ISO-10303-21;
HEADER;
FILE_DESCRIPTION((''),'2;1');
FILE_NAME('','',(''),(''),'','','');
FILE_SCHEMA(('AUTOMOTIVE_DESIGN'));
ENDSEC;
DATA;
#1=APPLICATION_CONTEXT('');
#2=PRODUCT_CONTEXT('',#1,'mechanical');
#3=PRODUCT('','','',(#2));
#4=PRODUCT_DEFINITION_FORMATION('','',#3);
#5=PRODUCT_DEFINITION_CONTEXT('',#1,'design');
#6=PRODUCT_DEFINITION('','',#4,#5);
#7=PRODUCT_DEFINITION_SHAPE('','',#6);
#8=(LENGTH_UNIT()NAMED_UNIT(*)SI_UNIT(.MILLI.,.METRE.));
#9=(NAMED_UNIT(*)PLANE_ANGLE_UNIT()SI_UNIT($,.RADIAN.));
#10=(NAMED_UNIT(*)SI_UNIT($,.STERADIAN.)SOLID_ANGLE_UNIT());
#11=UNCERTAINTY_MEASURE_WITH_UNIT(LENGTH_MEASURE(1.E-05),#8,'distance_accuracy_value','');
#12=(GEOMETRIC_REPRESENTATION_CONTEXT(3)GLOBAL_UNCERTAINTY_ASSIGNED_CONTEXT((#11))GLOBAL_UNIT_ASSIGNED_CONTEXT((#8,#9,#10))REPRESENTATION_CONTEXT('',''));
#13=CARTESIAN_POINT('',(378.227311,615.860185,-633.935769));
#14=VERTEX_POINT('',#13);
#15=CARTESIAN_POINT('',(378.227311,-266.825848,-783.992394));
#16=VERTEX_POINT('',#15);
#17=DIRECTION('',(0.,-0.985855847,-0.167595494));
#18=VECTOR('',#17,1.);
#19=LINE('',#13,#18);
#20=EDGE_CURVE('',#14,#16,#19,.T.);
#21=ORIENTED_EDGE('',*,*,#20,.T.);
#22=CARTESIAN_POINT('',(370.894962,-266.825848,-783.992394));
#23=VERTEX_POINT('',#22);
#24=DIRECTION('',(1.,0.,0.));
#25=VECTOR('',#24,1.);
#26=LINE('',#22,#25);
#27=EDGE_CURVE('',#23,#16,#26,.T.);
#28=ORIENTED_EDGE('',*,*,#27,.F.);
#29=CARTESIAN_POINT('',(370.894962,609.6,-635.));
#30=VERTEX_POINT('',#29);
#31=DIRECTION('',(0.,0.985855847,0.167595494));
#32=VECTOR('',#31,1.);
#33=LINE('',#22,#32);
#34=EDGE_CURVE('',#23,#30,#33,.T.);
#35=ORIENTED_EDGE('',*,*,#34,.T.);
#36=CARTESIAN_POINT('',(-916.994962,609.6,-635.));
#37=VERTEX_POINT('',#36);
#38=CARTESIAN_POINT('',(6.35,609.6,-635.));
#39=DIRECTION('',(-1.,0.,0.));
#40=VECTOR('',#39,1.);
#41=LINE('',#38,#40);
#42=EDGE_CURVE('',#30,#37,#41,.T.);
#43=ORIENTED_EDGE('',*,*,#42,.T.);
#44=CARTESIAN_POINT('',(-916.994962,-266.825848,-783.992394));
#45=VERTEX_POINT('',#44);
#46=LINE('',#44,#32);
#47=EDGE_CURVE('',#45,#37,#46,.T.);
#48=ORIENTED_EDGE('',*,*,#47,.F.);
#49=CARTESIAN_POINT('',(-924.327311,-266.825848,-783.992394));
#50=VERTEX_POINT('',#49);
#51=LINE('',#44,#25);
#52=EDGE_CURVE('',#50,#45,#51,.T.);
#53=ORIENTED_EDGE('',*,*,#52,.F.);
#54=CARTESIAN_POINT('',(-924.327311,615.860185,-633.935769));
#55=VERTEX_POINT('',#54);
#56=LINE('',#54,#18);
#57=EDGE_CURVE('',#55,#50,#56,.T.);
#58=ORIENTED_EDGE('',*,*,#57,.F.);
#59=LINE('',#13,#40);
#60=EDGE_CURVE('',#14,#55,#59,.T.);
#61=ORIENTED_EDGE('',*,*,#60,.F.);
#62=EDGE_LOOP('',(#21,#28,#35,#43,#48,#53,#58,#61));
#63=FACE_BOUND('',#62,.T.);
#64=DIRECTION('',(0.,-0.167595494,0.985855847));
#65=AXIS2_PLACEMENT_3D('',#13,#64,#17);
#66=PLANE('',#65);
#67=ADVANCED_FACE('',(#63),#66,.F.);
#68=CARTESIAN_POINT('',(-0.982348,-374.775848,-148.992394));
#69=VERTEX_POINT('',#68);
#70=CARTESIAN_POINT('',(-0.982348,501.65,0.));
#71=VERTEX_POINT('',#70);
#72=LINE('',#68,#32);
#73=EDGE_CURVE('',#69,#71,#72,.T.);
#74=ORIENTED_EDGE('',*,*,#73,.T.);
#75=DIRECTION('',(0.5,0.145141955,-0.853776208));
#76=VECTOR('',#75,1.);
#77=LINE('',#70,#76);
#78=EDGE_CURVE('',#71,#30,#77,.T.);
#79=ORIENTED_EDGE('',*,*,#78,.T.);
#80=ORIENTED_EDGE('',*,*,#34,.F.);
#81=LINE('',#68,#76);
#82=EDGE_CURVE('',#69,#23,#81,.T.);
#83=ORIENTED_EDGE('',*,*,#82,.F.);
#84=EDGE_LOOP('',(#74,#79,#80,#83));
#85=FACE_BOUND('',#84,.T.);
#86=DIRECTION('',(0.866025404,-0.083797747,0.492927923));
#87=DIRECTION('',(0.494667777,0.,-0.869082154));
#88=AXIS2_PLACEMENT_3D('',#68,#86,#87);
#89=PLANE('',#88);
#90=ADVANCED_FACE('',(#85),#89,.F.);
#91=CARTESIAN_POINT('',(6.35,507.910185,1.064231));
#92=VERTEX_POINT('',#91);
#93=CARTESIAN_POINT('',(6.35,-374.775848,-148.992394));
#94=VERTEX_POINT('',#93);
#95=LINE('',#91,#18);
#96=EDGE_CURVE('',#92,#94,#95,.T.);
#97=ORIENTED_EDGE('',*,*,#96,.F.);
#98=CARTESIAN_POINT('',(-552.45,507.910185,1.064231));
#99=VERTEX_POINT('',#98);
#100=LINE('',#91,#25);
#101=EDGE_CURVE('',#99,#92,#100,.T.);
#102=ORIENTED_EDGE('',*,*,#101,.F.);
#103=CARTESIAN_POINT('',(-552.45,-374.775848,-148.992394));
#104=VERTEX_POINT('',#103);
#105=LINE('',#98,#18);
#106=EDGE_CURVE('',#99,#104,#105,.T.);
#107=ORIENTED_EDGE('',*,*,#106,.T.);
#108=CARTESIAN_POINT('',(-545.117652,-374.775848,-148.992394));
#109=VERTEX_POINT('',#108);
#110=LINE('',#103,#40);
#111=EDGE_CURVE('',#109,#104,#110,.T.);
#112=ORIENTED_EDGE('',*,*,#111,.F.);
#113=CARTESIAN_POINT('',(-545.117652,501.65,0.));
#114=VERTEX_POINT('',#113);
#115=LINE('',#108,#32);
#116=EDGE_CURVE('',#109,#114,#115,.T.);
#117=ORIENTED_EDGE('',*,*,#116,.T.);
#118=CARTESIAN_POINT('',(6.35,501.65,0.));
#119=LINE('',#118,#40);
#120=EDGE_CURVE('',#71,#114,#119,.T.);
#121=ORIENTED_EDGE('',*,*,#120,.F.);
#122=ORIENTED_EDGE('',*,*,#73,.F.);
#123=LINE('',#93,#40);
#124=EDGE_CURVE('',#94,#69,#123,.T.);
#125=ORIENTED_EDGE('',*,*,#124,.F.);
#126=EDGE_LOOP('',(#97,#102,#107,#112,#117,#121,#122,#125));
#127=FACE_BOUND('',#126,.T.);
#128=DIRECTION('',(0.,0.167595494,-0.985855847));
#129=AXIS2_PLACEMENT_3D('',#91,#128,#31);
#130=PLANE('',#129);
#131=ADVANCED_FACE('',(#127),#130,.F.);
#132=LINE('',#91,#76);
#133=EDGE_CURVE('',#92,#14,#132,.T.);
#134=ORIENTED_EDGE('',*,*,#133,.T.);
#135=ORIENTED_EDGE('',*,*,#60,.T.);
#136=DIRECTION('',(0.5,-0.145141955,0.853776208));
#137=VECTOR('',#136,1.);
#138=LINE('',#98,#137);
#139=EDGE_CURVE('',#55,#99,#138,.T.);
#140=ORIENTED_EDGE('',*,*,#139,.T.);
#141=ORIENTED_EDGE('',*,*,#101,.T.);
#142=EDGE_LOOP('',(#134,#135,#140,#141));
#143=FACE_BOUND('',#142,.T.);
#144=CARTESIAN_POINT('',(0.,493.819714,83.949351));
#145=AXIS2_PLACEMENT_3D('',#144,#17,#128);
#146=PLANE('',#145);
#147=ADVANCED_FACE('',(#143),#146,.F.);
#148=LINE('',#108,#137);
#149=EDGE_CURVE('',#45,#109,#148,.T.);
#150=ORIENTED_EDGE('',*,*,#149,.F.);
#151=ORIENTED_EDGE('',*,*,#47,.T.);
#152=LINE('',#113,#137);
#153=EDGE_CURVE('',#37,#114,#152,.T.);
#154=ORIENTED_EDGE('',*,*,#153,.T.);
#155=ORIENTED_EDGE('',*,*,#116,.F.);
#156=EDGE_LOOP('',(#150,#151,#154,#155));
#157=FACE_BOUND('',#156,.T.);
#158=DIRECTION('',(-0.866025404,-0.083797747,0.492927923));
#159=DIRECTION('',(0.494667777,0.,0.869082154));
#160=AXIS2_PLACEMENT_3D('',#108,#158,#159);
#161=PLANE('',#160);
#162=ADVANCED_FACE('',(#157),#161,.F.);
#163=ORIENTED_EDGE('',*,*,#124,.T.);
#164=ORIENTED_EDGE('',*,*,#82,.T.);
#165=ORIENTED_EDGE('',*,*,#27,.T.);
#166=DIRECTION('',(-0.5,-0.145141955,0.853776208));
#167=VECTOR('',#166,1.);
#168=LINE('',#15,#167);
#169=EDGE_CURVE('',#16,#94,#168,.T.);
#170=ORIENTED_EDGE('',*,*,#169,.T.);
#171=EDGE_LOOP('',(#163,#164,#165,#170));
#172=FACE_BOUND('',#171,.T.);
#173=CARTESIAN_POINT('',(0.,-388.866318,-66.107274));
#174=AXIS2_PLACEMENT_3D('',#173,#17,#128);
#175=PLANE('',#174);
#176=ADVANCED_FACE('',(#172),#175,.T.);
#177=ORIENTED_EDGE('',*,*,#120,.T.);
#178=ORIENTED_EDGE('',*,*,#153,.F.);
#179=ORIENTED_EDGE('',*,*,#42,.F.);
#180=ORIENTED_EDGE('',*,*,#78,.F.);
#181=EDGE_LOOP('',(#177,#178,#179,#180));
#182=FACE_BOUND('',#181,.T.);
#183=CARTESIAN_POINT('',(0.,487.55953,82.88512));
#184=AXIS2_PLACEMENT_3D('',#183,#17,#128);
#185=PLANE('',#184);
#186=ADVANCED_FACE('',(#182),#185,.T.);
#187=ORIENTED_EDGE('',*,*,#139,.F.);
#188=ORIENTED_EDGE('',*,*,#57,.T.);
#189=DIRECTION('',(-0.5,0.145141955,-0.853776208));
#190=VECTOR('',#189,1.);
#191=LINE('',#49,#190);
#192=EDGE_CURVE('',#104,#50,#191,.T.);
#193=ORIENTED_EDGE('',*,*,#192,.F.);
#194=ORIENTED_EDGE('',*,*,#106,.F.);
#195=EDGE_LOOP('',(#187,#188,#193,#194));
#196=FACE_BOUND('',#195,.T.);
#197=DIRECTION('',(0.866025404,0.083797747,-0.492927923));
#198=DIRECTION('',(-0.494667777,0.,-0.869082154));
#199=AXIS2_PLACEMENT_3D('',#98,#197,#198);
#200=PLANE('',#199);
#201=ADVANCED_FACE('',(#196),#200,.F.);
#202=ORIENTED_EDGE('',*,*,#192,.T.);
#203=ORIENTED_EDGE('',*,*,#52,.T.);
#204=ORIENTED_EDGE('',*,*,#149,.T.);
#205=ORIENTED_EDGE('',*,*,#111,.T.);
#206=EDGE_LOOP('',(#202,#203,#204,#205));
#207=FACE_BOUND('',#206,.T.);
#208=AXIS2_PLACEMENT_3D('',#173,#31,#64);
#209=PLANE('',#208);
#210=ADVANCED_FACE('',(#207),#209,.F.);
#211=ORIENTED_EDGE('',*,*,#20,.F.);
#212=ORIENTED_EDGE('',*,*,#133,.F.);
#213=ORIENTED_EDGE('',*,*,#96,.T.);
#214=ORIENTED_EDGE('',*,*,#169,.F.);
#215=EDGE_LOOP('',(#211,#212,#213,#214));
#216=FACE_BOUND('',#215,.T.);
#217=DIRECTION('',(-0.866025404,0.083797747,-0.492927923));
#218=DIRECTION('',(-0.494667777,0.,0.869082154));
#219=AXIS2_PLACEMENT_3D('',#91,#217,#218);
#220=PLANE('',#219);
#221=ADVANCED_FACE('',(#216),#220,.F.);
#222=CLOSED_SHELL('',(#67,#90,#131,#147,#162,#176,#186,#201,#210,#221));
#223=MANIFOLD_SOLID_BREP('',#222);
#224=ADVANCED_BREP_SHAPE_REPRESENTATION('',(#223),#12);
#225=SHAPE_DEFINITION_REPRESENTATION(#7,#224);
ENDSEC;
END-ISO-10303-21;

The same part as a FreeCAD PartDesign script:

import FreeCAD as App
import Part
import Sketcher
Q = App.Units.Quantity


def add_polygon(sketch, points):
    """Adds a closed chain of lines whose ends are joined by coincident constraints."""
    first, n = sketch.GeometryCount, len(points)
    for a, b in zip(points, points[1:] + points[:1]):
        sketch.addGeometry(Part.LineSegment(App.Vector(*a, 0), App.Vector(*b, 0)), False)
    for i in range(n):
        sketch.addConstraint(Sketcher.Constraint("Coincident", first + i, 2, first + (i + 1) % n, 1))

doc = App.newDocument("Part")
body = doc.addObject("PartDesign::Body", "Body")

# Sketch on YZ plane
sketch1 = body.newObject("Sketcher::SketchObject", "Sketch")
sketch1.AttachmentSupport = (doc.getObject("YZ_Plane"), [""])
sketch1.MapMode = "FlatFace"
add_polygon(sketch1, [(0, 0), (0, -635), (610, -635), (502, 0)])  # lines 0-3
sketch1.addConstraint(Sketcher.Constraint("Vertical", 0))
sketch1.addConstraint(Sketcher.Constraint("Horizontal", 1))
sketch1.addConstraint(Sketcher.Constraint("Horizontal", 3))
sketch1.addConstraint(Sketcher.Constraint("Coincident", 3, 2, -1, 1))
sketch1.addConstraint(Sketcher.Constraint("DistanceX", 1, 1, 1, 2, Q("24 in")))
sketch1.addConstraint(Sketcher.Constraint("DistanceY", 0, 2, 0, 1, Q("25 in")))
sketch1.addConstraint(Sketcher.Constraint("DistanceX", 3, 2, 3, 1, Q("19.75 in")))
pad1 = body.newObject("PartDesign::Pad", "Pad")
pad1.Profile = sketch1
pad1.Length = Q("0.25 in")

# Sketch on an angled plane
sketch2 = body.newObject("Sketcher::SketchObject", "Sketch001")
sketch2.Placement = App.Placement(App.Vector(0, 487.55953, 82.88512), App.Rotation(App.Vector(1, 0, 0), App.Vector(0, 0.167595494, -0.985855847), App.Vector(0, 0.985855847, 0.167595494), "ZXY"))
add_polygon(sketch2, [(6, 84), (378, 728), (-924, 728), (-552, 84)])  # lines 0-3
sketch2.addConstraint(Sketcher.Constraint("Horizontal", 1))
sketch2.addConstraint(Sketcher.Constraint("Horizontal", 3))
sketch2.addConstraint(Sketcher.Constraint("Equal", 0, 2))
sketch2.addConstraint(Sketcher.Constraint("DistanceX", 3, 1, 3, 2, Q("22 in")))
sketch2.addConstraint(Sketcher.Constraint("Angle", 0, Q("60 deg")))
sketch2.addConstraint(Sketcher.Constraint("DistanceX", 2, 2, -1, 1, Q("21.75 in")))
sketch2.addConstraint(Sketcher.Constraint("DistanceX", 1, 2, 1, 1, 1302.554621))
sketch2.addConstraint(Sketcher.Constraint("DistanceY", -1, 1, 2, 2, 84.07428))
pad2 = body.newObject("PartDesign::Pad", "Pad001")
pad2.Profile = sketch2
pad2.Length = Q("0.25 in")

# Sketch on YZ plane
sketch3 = body.newObject("Sketcher::SketchObject", "Sketch002")
sketch3.AttachmentSupport = (doc.getObject("YZ_Plane"), [""])
sketch3.MapMode = "FlatFace"
sketch3.AttachmentOffset = App.Placement(App.Vector(0, 0, 0.25 * 25.4), App.Rotation())
add_polygon(sketch3, [(502, 0), (0, 0), (0, -635), (610, -635)])  # lines 0-3
sketch3.addConstraint(Sketcher.Constraint("Horizontal", 0))
sketch3.addConstraint(Sketcher.Constraint("Vertical", 1))
sketch3.addConstraint(Sketcher.Constraint("Horizontal", 2))
sketch3.addConstraint(Sketcher.Constraint("Coincident", 0, 2, -1, 1))
sketch3.addConstraint(Sketcher.Constraint("DistanceX", 2, 1, 2, 2, Q("24 in")))
sketch3.addConstraint(Sketcher.Constraint("DistanceY", 1, 2, 1, 1, Q("25 in")))
sketch3.addConstraint(Sketcher.Constraint("DistanceX", 0, 2, 0, 1, Q("19.75 in")))
pocket1 = body.newObject("PartDesign::Pocket", "Pocket")
pocket1.Profile = sketch3
pocket1.Type = "UpToFirst"

# Sketch on an angled plane
sketch4 = body.newObject("Sketcher::SketchObject", "Sketch003")
sketch4.Placement = App.Placement(App.Vector(0, 487.55953, 82.88512), App.Rotation(App.Vector(1, 0, 0), App.Vector(0, -0.167595494, 0.985855847), App.Vector(0, -0.985855847, -0.167595494), "ZXY"))
add_polygon(sketch4, [(378, -728), (6, -84), (-1, -84), (371, -728)])  # lines 0-3
add_polygon(sketch4, [(-552, -84), (-924, -728), (-917, -728), (-545, -84)])  # lines 4-7
sketch4.addConstraint(Sketcher.Constraint("Horizontal", 1))
sketch4.addConstraint(Sketcher.Constraint("Horizontal", 3))
sketch4.addConstraint(Sketcher.Constraint("Horizontal", 5))
sketch4.addConstraint(Sketcher.Constraint("Horizontal", 7))
sketch4.addConstraint(Sketcher.Constraint("Parallel", 0, 2))
sketch4.addConstraint(Sketcher.Constraint("Parallel", 4, 6))
sketch4.addConstraint(Sketcher.Constraint("Horizontal", 3, 2, 4, 2))
sketch4.addConstraint(Sketcher.Constraint("Horizontal", 1, 2, 6, 2))
sketch4.addConstraint(Sketcher.Constraint("Equal", 3, 5))
sketch4.addConstraint(Sketcher.Constraint("Equal", 2, 4))
sketch4.addConstraint(Sketcher.Constraint("Angle", 0, Q("120 deg")))
sketch4.addConstraint(Sketcher.Constraint("DistanceX", 7, 2, 0, 2, Q("22 in")))
sketch4.addConstraint(Sketcher.Constraint("DistanceX", -1, 1, 0, 2, Q("0.25 in")))
sketch4.addConstraint(Sketcher.Constraint("DistanceX", 1, 2, 1, 1, 7.332348))
sketch4.addConstraint(Sketcher.Constraint("Distance", 0, 743.754622))
sketch4.addConstraint(Sketcher.Constraint("DistanceY", 0, 2, -1, 1, 84.07428))
pad3 = body.newObject("PartDesign::Pad", "Pad002")
pad3.Profile = sketch4
pad3.Length = Q("35 in")

doc.recompute()
